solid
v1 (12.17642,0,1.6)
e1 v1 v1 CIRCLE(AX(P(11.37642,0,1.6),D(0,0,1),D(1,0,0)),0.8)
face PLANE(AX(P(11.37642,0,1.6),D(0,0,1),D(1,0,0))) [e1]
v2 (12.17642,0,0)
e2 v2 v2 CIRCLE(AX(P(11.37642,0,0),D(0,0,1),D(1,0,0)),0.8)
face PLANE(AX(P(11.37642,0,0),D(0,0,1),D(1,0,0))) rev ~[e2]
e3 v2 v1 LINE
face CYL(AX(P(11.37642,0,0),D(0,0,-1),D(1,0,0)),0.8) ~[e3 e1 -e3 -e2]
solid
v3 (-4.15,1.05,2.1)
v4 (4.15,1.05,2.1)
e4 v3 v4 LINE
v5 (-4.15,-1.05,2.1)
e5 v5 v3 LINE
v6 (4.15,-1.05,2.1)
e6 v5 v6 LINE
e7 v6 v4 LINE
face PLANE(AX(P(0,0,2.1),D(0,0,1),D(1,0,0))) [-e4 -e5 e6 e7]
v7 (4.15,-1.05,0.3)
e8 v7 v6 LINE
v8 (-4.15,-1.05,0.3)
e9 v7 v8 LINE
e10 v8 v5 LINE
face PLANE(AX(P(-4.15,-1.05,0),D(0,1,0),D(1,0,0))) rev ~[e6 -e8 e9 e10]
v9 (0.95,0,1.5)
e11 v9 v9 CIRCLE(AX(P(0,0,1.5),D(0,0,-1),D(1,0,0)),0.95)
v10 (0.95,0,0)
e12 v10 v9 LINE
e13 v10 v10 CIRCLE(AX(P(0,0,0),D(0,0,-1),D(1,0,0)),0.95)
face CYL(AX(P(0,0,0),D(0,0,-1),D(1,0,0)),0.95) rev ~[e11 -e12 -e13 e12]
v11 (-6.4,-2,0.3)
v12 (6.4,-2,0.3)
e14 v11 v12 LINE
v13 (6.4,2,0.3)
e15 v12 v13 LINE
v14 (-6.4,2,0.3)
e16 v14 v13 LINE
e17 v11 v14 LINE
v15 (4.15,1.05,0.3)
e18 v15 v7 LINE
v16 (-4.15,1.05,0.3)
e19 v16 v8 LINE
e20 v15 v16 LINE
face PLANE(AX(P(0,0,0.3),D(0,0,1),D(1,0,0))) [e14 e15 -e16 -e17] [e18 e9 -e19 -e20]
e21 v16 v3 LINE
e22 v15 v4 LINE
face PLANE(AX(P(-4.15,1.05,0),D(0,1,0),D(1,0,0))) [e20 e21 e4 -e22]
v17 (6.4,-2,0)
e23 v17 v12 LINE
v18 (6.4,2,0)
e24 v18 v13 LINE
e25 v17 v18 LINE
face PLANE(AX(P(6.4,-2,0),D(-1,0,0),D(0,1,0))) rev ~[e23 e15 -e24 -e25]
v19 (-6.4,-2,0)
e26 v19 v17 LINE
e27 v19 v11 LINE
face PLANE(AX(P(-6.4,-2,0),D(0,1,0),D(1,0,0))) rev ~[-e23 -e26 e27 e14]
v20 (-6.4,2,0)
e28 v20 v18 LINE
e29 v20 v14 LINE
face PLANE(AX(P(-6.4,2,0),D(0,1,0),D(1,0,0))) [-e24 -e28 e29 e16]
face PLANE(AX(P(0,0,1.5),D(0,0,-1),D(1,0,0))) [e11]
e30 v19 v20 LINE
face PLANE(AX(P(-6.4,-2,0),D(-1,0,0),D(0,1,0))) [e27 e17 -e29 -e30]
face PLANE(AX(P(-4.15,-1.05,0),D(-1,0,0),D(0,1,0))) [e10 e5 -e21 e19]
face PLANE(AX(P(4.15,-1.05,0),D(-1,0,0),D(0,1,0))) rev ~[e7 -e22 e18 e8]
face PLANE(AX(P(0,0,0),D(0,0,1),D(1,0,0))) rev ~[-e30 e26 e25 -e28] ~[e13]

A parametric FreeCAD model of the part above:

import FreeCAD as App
import Part
import Sketcher
from FreeCAD import Vector

doc = App.newDocument("Part")
body = doc.addObject("PartDesign::Body", "Body")

sketch1 = doc.addObject("Sketcher::SketchObject", "Sketch")
body.addObject(sketch1)
sketch1.AttachmentSupport = (doc.XY_Plane, [""])
sketch1.MapMode = "FlatFace"
sketch1.addGeometry([
    Part.LineSegment(Vector(-6.4, 2, 0), Vector(-6.4, -2, 0)),
    Part.LineSegment(Vector(-6.4, -2, 0), Vector(6.4, -2, 0)),
    Part.LineSegment(Vector(6.4, -2, 0), Vector(6.4, 2, 0)),
    Part.LineSegment(Vector(6.4, 2, 0), Vector(-6.4, 2, 0)),
], False)
sketch1.addConstraint([
    Sketcher.Constraint("Coincident", 0, 2, 1, 1),
    Sketcher.Constraint("Coincident", 1, 2, 2, 1),
    Sketcher.Constraint("Coincident", 2, 2, 3, 1),
    Sketcher.Constraint("Coincident", 3, 2, 0, 1),
    Sketcher.Constraint("Vertical", 0),
    Sketcher.Constraint("Horizontal", 1),
    Sketcher.Constraint("Vertical", 2),
    Sketcher.Constraint("Horizontal", 3),
    Sketcher.Constraint("Symmetric", 0, 2, 2, 2, -1, 1),
    Sketcher.Constraint("DistanceY", 0, 2, 0, 1, 4.0),
    Sketcher.Constraint("DistanceX", 1, 1, 1, 2, 12.8),
])
pad1 = doc.addObject("PartDesign::Pad", "Pad")
body.addObject(pad1)
pad1.Profile = sketch1
pad1.Length = 0.3

sketch2 = doc.addObject("Sketcher::SketchObject", "Sketch001")
body.addObject(sketch2)
sketch2.AttachmentSupport = (doc.XY_Plane, [""])
sketch2.MapMode = "FlatFace"
sketch2.addGeometry([
    Part.LineSegment(Vector(-4.2, 1.1, 0), Vector(-4.2, -1.1, 0)),
    Part.LineSegment(Vector(-4.2, -1.1, 0), Vector(4.2, -1.1, 0)),
    Part.LineSegment(Vector(4.2, -1.1, 0), Vector(4.2, 1.1, 0)),
    Part.LineSegment(Vector(4.2, 1.1, 0), Vector(-4.2, 1.1, 0)),
], False)
sketch2.addConstraint([
    Sketcher.Constraint("Coincident", 0, 2, 1, 1),
    Sketcher.Constraint("Coincident", 1, 2, 2, 1),
    Sketcher.Constraint("Coincident", 2, 2, 3, 1),
    Sketcher.Constraint("Coincident", 3, 2, 0, 1),
    Sketcher.Constraint("Vertical", 0),
    Sketcher.Constraint("Horizontal", 1),
    Sketcher.Constraint("Vertical", 2),
    Sketcher.Constraint("Horizontal", 3),
    Sketcher.Constraint("Symmetric", 0, 2, 2, 2, -1, 1),
    Sketcher.Constraint("DistanceX", 1, 1, 1, 2, 8.3),
    Sketcher.Constraint("DistanceY", 0, 2, 0, 1, 2.1),
])
pad2 = doc.addObject("PartDesign::Pad", "Pad001")
body.addObject(pad2)
pad2.Profile = sketch2
pad2.Length = 2.1

sketch3 = doc.addObject("Sketcher::SketchObject", "Sketch002")
body.addObject(sketch3)
sketch3.AttachmentSupport = (doc.XY_Plane, [""])
sketch3.MapMode = "FlatFace"
sketch3.addGeometry(Part.Circle(Vector(0, 0, 0), Vector(0, 0, 1), 0.9), False)
sketch3.addConstraint([
    Sketcher.Constraint("Coincident", 0, 3, -1, 1),
    Sketcher.Constraint("Diameter", 0, 1.9),
])
pocket1 = doc.addObject("PartDesign::Pocket", "Pocket")
body.addObject(pocket1)
pocket1.Profile = sketch3
pocket1.Length = 1.5
pocket1.Reversed = True
body2 = doc.addObject("PartDesign::Body", "Body001")

sketch4 = doc.addObject("Sketcher::SketchObject", "Sketch003")
body2.addObject(sketch4)
sketch4.AttachmentSupport = (doc.getObject("XY_Plane001"), [""])
sketch4.MapMode = "FlatFace"
sketch4.addGeometry(Part.Circle(Vector(11.4, 0, 0), Vector(0, 0, 1), 0.8), False)
sketch4.addConstraint([
    Sketcher.Constraint("PointOnObject", 0, 3, -1),
    Sketcher.Constraint("Diameter", 0, 1.6),
    Sketcher.Constraint("DistanceX", -1, 1, 0, 3, 11.37642),
])
pad3 = doc.addObject("PartDesign::Pad", "Pad002")
body2.addObject(pad3)
pad3.Profile = sketch4
pad3.Length = 1.6

doc.recompute()
